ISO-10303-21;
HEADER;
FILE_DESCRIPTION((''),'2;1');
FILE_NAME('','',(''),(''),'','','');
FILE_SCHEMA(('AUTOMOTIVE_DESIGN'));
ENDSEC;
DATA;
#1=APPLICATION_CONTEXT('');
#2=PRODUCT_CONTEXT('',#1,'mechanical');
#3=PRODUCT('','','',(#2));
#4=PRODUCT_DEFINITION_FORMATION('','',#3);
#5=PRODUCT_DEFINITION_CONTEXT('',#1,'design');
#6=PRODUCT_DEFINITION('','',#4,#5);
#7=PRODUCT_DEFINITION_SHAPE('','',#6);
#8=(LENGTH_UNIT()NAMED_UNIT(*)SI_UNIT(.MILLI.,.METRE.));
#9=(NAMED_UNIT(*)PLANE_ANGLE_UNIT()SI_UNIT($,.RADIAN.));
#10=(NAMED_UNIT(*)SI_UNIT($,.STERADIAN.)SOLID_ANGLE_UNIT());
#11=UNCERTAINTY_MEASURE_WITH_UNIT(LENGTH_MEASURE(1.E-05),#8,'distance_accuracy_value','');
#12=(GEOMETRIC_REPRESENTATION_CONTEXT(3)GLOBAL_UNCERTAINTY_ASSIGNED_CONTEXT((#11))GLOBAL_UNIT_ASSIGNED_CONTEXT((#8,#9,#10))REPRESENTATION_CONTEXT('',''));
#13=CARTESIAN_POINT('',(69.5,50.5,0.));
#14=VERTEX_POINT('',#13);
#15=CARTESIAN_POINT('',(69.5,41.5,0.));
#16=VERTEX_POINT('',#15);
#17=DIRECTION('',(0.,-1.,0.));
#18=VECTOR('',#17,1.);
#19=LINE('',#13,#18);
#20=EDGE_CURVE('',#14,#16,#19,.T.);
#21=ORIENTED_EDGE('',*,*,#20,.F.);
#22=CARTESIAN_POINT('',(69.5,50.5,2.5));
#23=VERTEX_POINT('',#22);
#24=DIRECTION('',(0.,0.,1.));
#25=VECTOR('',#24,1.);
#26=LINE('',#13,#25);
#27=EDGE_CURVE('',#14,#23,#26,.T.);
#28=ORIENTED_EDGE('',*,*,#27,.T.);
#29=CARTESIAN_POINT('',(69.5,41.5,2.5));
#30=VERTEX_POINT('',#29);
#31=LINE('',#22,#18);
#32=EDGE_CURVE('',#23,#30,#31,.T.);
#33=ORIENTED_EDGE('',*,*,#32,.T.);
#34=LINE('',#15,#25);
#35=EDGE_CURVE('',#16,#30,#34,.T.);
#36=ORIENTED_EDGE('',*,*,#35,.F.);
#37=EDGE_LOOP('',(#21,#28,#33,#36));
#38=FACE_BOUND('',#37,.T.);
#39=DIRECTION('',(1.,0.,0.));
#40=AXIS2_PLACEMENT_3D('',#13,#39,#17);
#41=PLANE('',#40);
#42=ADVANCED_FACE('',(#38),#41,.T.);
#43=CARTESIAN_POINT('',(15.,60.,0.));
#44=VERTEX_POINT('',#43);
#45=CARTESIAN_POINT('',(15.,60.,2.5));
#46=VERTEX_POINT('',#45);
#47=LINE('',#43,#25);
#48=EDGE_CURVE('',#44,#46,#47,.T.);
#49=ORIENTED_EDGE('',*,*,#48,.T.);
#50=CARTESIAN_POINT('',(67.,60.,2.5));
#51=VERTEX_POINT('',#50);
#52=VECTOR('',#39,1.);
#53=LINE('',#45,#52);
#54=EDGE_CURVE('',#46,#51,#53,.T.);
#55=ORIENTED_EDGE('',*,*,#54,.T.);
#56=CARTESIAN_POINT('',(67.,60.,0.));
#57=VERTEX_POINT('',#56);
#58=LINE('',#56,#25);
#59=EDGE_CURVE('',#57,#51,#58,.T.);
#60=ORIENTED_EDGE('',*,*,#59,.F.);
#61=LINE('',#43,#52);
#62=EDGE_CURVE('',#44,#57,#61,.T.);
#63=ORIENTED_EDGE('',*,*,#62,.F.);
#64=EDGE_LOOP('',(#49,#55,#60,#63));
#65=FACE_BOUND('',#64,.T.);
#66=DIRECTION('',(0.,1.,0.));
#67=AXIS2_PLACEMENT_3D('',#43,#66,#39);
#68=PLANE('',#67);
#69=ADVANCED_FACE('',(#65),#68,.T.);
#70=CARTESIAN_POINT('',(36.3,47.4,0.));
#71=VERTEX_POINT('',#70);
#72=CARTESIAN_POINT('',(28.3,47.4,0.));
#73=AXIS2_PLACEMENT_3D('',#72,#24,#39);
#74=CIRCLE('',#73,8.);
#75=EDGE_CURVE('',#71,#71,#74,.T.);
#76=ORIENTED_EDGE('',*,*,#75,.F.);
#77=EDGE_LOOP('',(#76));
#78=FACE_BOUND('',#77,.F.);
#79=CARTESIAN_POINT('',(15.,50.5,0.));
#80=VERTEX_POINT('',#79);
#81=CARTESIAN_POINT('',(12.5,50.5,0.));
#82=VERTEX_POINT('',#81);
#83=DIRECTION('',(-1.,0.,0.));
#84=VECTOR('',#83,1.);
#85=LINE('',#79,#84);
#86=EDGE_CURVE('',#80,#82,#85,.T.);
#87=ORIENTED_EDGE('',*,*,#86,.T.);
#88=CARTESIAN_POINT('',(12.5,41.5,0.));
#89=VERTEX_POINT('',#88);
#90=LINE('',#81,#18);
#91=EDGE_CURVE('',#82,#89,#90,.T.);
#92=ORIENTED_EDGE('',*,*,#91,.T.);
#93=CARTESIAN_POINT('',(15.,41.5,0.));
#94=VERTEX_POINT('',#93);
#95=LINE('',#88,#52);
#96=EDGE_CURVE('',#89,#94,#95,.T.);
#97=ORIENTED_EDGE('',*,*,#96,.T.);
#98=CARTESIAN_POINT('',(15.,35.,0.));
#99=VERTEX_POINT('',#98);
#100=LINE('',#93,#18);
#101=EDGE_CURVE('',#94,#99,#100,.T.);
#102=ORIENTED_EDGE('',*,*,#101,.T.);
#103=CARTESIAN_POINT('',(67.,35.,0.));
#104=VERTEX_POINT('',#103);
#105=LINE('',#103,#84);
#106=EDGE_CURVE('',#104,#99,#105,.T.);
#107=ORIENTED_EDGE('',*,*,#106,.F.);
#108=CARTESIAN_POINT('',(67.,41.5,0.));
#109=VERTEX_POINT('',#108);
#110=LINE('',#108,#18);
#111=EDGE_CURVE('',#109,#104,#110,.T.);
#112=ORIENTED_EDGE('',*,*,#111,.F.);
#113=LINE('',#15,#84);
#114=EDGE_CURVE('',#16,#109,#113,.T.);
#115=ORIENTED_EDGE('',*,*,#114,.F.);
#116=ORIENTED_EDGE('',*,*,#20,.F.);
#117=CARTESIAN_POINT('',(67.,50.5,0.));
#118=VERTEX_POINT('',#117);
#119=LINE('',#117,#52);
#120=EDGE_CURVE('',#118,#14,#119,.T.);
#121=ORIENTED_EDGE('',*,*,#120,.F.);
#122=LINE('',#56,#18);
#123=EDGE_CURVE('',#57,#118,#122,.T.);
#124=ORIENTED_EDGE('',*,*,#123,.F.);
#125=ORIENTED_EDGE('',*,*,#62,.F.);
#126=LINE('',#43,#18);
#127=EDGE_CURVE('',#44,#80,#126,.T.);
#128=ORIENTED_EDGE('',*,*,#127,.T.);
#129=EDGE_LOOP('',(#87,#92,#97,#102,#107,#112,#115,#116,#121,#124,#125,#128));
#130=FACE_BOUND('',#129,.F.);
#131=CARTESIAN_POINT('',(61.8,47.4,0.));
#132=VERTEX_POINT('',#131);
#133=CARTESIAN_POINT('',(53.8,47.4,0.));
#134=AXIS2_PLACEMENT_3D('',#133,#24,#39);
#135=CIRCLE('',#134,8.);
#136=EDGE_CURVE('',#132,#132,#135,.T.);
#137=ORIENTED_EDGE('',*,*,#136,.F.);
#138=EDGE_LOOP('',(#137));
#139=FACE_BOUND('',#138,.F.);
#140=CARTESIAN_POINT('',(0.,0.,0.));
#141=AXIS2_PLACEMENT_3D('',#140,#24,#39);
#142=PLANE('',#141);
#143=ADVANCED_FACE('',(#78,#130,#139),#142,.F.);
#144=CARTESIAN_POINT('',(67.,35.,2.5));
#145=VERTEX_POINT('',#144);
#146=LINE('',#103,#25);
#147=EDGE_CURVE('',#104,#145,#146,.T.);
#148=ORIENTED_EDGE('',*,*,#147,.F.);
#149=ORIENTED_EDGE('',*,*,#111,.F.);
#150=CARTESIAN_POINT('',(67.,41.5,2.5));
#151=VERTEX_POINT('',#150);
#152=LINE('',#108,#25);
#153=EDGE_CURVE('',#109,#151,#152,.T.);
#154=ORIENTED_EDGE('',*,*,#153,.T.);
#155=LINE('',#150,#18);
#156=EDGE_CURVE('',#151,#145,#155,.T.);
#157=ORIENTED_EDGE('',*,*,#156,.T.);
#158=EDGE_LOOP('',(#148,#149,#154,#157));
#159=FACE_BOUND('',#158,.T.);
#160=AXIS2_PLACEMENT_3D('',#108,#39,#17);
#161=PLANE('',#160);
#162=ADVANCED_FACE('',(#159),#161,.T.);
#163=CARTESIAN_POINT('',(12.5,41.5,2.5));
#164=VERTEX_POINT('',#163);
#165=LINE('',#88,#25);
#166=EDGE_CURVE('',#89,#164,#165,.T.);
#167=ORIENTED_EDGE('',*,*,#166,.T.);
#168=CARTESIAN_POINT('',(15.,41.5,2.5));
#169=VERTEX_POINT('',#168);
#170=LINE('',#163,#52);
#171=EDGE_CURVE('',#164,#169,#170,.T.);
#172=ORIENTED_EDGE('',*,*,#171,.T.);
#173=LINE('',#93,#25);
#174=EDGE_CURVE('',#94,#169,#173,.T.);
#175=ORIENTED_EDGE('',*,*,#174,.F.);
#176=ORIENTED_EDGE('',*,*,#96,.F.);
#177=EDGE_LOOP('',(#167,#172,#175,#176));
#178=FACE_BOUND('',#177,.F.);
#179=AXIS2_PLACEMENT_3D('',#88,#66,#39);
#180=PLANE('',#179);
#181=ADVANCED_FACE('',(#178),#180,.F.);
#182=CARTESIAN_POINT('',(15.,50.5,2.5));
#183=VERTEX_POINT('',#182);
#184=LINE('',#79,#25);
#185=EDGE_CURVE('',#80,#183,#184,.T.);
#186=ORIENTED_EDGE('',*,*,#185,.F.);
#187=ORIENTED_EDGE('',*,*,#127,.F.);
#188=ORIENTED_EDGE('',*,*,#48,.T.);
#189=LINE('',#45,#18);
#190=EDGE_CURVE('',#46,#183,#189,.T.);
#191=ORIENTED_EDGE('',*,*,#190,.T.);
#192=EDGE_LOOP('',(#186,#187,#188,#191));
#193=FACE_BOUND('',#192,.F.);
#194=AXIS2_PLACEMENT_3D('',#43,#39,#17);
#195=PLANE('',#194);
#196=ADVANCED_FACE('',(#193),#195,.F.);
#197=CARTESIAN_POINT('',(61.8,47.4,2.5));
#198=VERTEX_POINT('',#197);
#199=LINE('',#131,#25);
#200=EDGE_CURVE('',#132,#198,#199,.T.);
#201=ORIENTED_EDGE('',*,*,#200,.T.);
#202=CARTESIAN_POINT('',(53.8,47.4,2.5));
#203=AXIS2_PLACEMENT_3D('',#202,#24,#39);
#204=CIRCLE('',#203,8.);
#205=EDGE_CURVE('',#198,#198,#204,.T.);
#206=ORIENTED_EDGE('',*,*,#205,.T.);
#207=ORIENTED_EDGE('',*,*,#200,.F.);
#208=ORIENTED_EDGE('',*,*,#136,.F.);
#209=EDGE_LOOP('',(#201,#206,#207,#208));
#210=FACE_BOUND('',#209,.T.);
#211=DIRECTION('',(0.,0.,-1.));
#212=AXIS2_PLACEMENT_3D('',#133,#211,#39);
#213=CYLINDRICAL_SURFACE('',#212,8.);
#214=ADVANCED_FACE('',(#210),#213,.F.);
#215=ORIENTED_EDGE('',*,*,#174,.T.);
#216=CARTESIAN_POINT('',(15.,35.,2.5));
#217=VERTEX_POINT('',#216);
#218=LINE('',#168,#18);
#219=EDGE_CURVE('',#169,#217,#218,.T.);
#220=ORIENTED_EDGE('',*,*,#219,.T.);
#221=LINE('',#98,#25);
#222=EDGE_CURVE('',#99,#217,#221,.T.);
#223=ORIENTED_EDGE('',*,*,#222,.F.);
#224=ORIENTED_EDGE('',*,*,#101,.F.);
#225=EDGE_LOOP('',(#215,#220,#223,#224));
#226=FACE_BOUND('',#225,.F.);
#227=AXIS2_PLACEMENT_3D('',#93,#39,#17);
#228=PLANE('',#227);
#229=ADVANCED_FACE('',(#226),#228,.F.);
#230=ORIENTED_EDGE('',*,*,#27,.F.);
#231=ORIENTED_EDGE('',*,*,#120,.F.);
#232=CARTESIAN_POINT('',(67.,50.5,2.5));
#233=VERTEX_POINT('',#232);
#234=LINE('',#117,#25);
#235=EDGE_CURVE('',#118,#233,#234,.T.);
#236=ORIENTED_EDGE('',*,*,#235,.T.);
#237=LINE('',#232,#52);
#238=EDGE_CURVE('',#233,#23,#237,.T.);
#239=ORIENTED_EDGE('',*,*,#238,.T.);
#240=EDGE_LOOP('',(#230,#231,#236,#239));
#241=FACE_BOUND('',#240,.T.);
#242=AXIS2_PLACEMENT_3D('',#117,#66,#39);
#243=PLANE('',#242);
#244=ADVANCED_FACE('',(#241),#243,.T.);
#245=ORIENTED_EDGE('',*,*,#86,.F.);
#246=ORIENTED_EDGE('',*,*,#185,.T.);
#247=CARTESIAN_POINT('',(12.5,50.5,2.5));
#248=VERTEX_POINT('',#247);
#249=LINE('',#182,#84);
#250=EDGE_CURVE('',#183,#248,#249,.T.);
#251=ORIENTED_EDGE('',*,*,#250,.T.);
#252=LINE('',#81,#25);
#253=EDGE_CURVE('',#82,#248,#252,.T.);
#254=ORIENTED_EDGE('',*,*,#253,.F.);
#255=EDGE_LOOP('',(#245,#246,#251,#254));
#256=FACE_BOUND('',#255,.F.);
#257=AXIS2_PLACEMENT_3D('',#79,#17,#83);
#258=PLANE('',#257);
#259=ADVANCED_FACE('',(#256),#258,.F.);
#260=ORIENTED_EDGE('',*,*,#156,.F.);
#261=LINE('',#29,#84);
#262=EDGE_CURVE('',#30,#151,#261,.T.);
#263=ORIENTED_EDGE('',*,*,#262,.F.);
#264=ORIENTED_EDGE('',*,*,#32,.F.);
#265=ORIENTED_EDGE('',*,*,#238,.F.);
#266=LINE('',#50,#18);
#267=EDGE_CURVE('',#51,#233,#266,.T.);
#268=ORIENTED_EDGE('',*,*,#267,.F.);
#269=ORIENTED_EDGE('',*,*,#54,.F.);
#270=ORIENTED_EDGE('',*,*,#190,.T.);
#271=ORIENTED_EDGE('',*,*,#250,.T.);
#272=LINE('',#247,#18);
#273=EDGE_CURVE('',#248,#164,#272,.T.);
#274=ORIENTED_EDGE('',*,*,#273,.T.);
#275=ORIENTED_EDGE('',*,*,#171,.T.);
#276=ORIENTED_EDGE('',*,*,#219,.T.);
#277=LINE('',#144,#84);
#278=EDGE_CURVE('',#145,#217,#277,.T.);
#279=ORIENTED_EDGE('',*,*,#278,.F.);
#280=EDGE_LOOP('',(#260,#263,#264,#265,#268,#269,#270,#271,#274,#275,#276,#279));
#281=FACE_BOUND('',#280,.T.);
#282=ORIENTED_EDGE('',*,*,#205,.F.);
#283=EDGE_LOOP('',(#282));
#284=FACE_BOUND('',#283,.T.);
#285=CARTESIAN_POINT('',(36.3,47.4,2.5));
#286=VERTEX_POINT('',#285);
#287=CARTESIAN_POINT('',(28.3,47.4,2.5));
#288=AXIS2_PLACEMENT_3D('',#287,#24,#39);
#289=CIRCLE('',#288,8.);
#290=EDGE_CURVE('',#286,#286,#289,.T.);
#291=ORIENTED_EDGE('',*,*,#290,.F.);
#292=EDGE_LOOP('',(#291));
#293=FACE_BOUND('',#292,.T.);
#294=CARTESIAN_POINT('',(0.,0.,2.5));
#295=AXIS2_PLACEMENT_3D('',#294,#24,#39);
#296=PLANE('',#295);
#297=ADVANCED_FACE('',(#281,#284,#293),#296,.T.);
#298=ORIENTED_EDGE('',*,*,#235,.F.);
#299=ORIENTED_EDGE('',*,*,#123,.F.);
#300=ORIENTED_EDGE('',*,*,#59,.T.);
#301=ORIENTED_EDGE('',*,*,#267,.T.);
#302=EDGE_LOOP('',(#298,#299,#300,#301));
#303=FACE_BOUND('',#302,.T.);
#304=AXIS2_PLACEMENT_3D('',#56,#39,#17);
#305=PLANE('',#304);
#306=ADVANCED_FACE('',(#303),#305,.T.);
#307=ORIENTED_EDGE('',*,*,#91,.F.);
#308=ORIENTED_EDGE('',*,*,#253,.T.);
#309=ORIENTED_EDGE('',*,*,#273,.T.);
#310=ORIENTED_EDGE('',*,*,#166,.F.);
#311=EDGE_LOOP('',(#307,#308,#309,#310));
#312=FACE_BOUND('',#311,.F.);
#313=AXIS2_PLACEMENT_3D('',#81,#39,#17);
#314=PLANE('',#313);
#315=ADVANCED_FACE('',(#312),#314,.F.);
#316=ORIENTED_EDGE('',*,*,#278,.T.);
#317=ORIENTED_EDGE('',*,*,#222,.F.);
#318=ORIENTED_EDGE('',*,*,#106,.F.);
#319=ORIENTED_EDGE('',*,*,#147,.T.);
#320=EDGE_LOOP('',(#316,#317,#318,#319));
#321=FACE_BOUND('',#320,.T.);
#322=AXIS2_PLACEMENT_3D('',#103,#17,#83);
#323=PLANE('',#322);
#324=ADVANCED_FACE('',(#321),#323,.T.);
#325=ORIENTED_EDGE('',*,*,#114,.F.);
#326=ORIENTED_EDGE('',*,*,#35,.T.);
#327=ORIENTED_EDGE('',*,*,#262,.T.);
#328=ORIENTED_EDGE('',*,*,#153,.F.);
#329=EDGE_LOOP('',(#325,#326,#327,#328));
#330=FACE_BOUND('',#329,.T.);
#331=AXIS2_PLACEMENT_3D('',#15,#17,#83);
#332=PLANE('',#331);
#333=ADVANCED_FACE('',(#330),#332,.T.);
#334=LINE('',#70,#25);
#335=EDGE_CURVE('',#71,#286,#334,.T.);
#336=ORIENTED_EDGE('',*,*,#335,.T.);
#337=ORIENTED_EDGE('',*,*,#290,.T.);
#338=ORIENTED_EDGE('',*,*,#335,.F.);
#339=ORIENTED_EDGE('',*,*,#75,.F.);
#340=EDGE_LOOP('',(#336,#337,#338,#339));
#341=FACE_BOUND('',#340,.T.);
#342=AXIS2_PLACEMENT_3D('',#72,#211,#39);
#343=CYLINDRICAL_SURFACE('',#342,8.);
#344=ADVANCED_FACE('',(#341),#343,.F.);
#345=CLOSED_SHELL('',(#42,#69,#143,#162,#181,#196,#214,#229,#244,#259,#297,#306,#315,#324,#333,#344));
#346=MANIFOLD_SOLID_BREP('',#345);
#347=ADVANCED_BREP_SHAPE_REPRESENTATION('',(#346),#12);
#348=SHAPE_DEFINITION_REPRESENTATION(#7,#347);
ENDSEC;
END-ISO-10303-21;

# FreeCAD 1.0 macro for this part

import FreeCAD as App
import Part
import Sketcher

V = App.Vector
Q = App.Units.Quantity

doc = App.newDocument("Part")
body = doc.addObject("PartDesign::Body", "Body")

# Sketch on XY plane
sketch1 = body.newObject("Sketcher::SketchObject", "Sketch")
sketch1.AttachmentSupport = (doc.getObject("XY_Plane"), [""])
sketch1.MapMode = "FlatFace"
sketch1.addGeometry([
    Part.LineSegment(V(67, 60, 0), V(15, 60, 0)),  # 0
    Part.LineSegment(V(15, 60, 0), V(15, 50.5, 0)),  # 1
    Part.LineSegment(V(15, 50.5, 0), V(12.5, 50.5, 0)),  # 2
    Part.LineSegment(V(12.5, 50.5, 0), V(12.5, 41.5, 0)),  # 3
    Part.LineSegment(V(12.5, 41.5, 0), V(15, 41.5, 0)),  # 4
    Part.LineSegment(V(15, 41.5, 0), V(15, 35, 0)),  # 5
    Part.LineSegment(V(15, 35, 0), V(67, 35, 0)),  # 6
    Part.LineSegment(V(67, 35, 0), V(67, 41.5, 0)),  # 7
    Part.LineSegment(V(67, 41.5, 0), V(69.5, 41.5, 0)),  # 8
    Part.LineSegment(V(69.5, 41.5, 0), V(69.5, 50.5, 0)),  # 9
    Part.LineSegment(V(69.5, 50.5, 0), V(67, 50.5, 0)),  # 10
    Part.LineSegment(V(67, 50.5, 0), V(67, 60, 0)),  # 11
    Part.Circle(V(28.3, 47.4, 0), V(0, 0, 1), 8),  # 12
    Part.Circle(V(53.8, 47.4, 0), V(0, 0, 1), 8),  # 13
], False)
sketch1.addConstraint([
    Sketcher.Constraint("Coincident", 0, 2, 1, 1),
    Sketcher.Constraint("Coincident", 1, 2, 2, 1),
    Sketcher.Constraint("Coincident", 2, 2, 3, 1),
    Sketcher.Constraint("Coincident", 3, 2, 4, 1),
    Sketcher.Constraint("Coincident", 4, 2, 5, 1),
    Sketcher.Constraint("Coincident", 5, 2, 6, 1),
    Sketcher.Constraint("Coincident", 6, 2, 7, 1),
    Sketcher.Constraint("Coincident", 7, 2, 8, 1),
    Sketcher.Constraint("Coincident", 8, 2, 9, 1),
    Sketcher.Constraint("Coincident", 9, 2, 10, 1),
    Sketcher.Constraint("Coincident", 10, 2, 11, 1),
    Sketcher.Constraint("Coincident", 11, 2, 0, 1),
    Sketcher.Constraint("Horizontal", 0),
    Sketcher.Constraint("Vertical", 1),
    Sketcher.Constraint("Horizontal", 2),
    Sketcher.Constraint("Vertical", 3),
    Sketcher.Constraint("Horizontal", 4),
    Sketcher.Constraint("Vertical", 5),
    Sketcher.Constraint("Horizontal", 6),
    Sketcher.Constraint("Vertical", 7),
    Sketcher.Constraint("Horizontal", 8),
    Sketcher.Constraint("Vertical", 9),
    Sketcher.Constraint("Horizontal", 10),
    Sketcher.Constraint("Vertical", 11),
    Sketcher.Constraint("Equal", 12, 13),
    Sketcher.Constraint("Horizontal", 12, 3, 13, 3),
    Sketcher.Constraint("Horizontal", 4, 2, 7, 2),
    Sketcher.Constraint("Horizontal", 2, 2, 9, 2),
    Sketcher.Constraint("Vertical", 1, 2, 4, 2),
    Sketcher.Constraint("Vertical", 7, 2, 10, 2),
    Sketcher.Constraint("Equal", 4, 8),
    Sketcher.Constraint("Diameter", 12, Q("16 mm")),
    Sketcher.Constraint("DistanceX", 0, 2, 0, 1, Q("52 mm")),
    Sketcher.Constraint("DistanceY", 3, 2, 3, 1, Q("9 mm")),
    Sketcher.Constraint("DistanceX", 2, 2, 2, 1, Q("2.5 mm")),
    Sketcher.Constraint("DistanceY", 1, 2, 1, 1, Q("9.5 mm")),
    Sketcher.Constraint("DistanceY", 5, 2, 5, 1, Q("6.5 mm")),
    Sketcher.Constraint("DistanceX", 12, 3, 13, 3, Q("25.5 mm")),
    Sketcher.Constraint("DistanceX", 2, 2, 12, 3, Q("15.8 mm")),
    Sketcher.Constraint("DistanceY", 5, 2, 12, 3, Q("12.4 mm")),
    Sketcher.Constraint("DistanceX", -1, 1, 0, 2, Q("15 mm")),
    Sketcher.Constraint("DistanceY", -1, 1, 0, 2, Q("60 mm")),
])
pad1 = body.newObject("PartDesign::Pad", "Pad")
pad1.Profile = sketch1
pad1.Length = 2.5

doc.recompute()
